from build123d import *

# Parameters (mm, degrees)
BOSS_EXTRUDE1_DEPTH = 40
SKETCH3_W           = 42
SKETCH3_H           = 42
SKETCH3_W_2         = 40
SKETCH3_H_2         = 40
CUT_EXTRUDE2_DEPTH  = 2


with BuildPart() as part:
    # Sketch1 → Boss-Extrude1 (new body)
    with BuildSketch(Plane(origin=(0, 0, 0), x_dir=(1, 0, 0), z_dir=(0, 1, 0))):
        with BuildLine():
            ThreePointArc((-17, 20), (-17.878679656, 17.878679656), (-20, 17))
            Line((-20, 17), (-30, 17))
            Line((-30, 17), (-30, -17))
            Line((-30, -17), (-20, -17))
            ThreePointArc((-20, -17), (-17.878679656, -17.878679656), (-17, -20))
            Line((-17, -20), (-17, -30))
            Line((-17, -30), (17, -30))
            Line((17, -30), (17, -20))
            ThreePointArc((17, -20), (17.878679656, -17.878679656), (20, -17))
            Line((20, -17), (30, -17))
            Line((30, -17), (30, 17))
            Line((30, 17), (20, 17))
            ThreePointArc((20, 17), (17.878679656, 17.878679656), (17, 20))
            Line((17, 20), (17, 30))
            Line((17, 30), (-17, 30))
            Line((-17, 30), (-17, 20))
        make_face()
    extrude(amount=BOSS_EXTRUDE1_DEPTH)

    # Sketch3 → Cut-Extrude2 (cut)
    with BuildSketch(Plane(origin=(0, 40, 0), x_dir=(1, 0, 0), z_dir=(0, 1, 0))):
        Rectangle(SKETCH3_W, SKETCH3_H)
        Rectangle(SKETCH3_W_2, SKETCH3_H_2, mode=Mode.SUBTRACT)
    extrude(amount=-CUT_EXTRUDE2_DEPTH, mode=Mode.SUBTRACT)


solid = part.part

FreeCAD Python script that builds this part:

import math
import FreeCAD as App
import Part
import Sketcher
from FreeCAD import Vector
Q = App.Units.Quantity

doc = App.newDocument("Part")
body = doc.addObject("PartDesign::Body", "Body")

# Sketch on XZ plane
sketch1 = body.newObject("Sketcher::SketchObject", "Sketch")
sketch1.AttachmentSupport = (doc.getObject("XZ_Plane"), [""])
sketch1.MapMode = "FlatFace"
sketch1.addGeometry(Part.ArcOfCircle(Part.Circle(Vector(-20, -20, 0), Vector(0, 0, 1), 3), math.radians(0), math.radians(90)), False)
sketch1.addGeometry(Part.LineSegment(Vector(-20, -17, 0), Vector(-30, -17, 0)), False)
sketch1.addGeometry(Part.LineSegment(Vector(-30, -17, 0), Vector(-30, 17, 0)), False)
sketch1.addGeometry(Part.LineSegment(Vector(-30, 17, 0), Vector(-20, 17, 0)), False)
sketch1.addGeometry(Part.ArcOfCircle(Part.Circle(Vector(-20, 20, 0), Vector(0, 0, 1), 3), math.radians(-90), math.radians(0)), False)
sketch1.addGeometry(Part.LineSegment(Vector(-17, 20, 0), Vector(-17, 30, 0)), False)
sketch1.addGeometry(Part.LineSegment(Vector(-17, 30, 0), Vector(17, 30, 0)), False)
sketch1.addGeometry(Part.LineSegment(Vector(17, 30, 0), Vector(17, 20, 0)), False)
sketch1.addGeometry(Part.ArcOfCircle(Part.Circle(Vector(20, 20, 0), Vector(0, 0, 1), 3), math.radians(180), math.radians(270)), False)
sketch1.addGeometry(Part.LineSegment(Vector(20, 17, 0), Vector(30, 17, 0)), False)
sketch1.addGeometry(Part.LineSegment(Vector(30, 17, 0), Vector(30, -17, 0)), False)
sketch1.addGeometry(Part.LineSegment(Vector(30, -17, 0), Vector(20, -17, 0)), False)
sketch1.addGeometry(Part.ArcOfCircle(Part.Circle(Vector(20, -20, 0), Vector(0, 0, 1), 3), math.radians(90), math.radians(180)), False)
sketch1.addGeometry(Part.LineSegment(Vector(17, -20, 0), Vector(17, -30, 0)), False)
sketch1.addGeometry(Part.LineSegment(Vector(17, -30, 0), Vector(-17, -30, 0)), False)
sketch1.addGeometry(Part.LineSegment(Vector(-17, -30, 0), Vector(-17, -20, 0)), False)
sketch1.addConstraint(Sketcher.Constraint("Tangent", 0, 2, 1, 1))
sketch1.addConstraint(Sketcher.Constraint("Coincident", 1, 2, 2, 1))
sketch1.addConstraint(Sketcher.Constraint("Coincident", 2, 2, 3, 1))
sketch1.addConstraint(Sketcher.Constraint("Tangent", 3, 2, 4, 1))
sketch1.addConstraint(Sketcher.Constraint("Tangent", 4, 2, 5, 1))
sketch1.addConstraint(Sketcher.Constraint("Coincident", 5, 2, 6, 1))
sketch1.addConstraint(Sketcher.Constraint("Coincident", 6, 2, 7, 1))
sketch1.addConstraint(Sketcher.Constraint("Tangent", 7, 2, 8, 1))
sketch1.addConstraint(Sketcher.Constraint("Tangent", 8, 2, 9, 1))
sketch1.addConstraint(Sketcher.Constraint("Coincident", 9, 2, 10, 1))
sketch1.addConstraint(Sketcher.Constraint("Coincident", 10, 2, 11, 1))
sketch1.addConstraint(Sketcher.Constraint("Tangent", 11, 2, 12, 1))
sketch1.addConstraint(Sketcher.Constraint("Tangent", 12, 2, 13, 1))
sketch1.addConstraint(Sketcher.Constraint("Coincident", 13, 2, 14, 1))
sketch1.addConstraint(Sketcher.Constraint("Coincident", 14, 2, 15, 1))
sketch1.addConstraint(Sketcher.Constraint("Tangent", 15, 2, 0, 1))
sketch1.addConstraint(Sketcher.Constraint("Horizontal", 1))
sketch1.addConstraint(Sketcher.Constraint("Vertical", 2))
sketch1.addConstraint(Sketcher.Constraint("Horizontal", 3))
sketch1.addConstraint(Sketcher.Constraint("Vertical", 5))
sketch1.addConstraint(Sketcher.Constraint("Horizontal", 6))
sketch1.addConstraint(Sketcher.Constraint("Vertical", 7))
sketch1.addConstraint(Sketcher.Constraint("Horizontal", 9))
sketch1.addConstraint(Sketcher.Constraint("Vertical", 10))
sketch1.addConstraint(Sketcher.Constraint("Horizontal", 11))
sketch1.addConstraint(Sketcher.Constraint("Vertical", 13))
sketch1.addConstraint(Sketcher.Constraint("Horizontal", 14))
sketch1.addConstraint(Sketcher.Constraint("Vertical", 15))
sketch1.addConstraint(Sketcher.Constraint("Equal", 0, 4))
sketch1.addConstraint(Sketcher.Constraint("Equal", 4, 8))
sketch1.addConstraint(Sketcher.Constraint("Equal", 8, 12))
sketch1.addConstraint(Sketcher.Constraint("Symmetric", 0, 3, 8, 3, -1, 1))
sketch1.addConstraint(Sketcher.Constraint("Symmetric", 4, 3, 12, 3, -1, 1))
sketch1.addConstraint(Sketcher.Constraint("Symmetric", 4, 3, 8, 3, -2))
sketch1.addConstraint(Sketcher.Constraint("Equal", 3, 9))
sketch1.addConstraint(Sketcher.Constraint("Equal", 14, 2))
sketch1.addConstraint(Sketcher.Constraint("Equal", 11, 5))
sketch1.addConstraint(Sketcher.Constraint("Equal", 7, 13))
sketch1.addConstraint(Sketcher.Constraint("Radius", 0, Q("3 mm")))
sketch1.addConstraint(Sketcher.Constraint("DistanceX", 1, 2, 1, 1, Q("10 mm")))
sketch1.addConstraint(Sketcher.Constraint("DistanceX", 6, 1, 6, 2, Q("34 mm")))
pad1 = body.newObject("PartDesign::Pad", "Pad")
pad1.Profile = sketch1
pad1.Length = 40
pad1.Reversed = True

# Sketch on XZ plane
sketch2 = body.newObject("Sketcher::SketchObject", "Sketch001")
sketch2.AttachmentSupport = (doc.getObject("XZ_Plane"), [""])
sketch2.MapMode = "FlatFace"
sketch2.AttachmentOffset = App.Placement(Vector(0, 0, -40), App.Rotation())
sketch2.addGeometry(Part.LineSegment(Vector(-21, -21, 0), Vector(-21, 21, 0)), False)
sketch2.addGeometry(Part.LineSegment(Vector(-21, 21, 0), Vector(21, 21, 0)), False)
sketch2.addGeometry(Part.LineSegment(Vector(21, 21, 0), Vector(21, -21, 0)), False)
sketch2.addGeometry(Part.LineSegment(Vector(21, -21, 0), Vector(-21, -21, 0)), False)
sketch2.addGeometry(Part.LineSegment(Vector(20, 20, 0), Vector(-20, 20, 0)), False)
sketch2.addGeometry(Part.LineSegment(Vector(-20, 20, 0), Vector(-20, -20, 0)), False)
sketch2.addGeometry(Part.LineSegment(Vector(-20, -20, 0), Vector(20, -20, 0)), False)
sketch2.addGeometry(Part.LineSegment(Vector(20, -20, 0), Vector(20, 20, 0)), False)
sketch2.addConstraint(Sketcher.Constraint("Coincident", 0, 2, 1, 1))
sketch2.addConstraint(Sketcher.Constraint("Coincident", 1, 2, 2, 1))
sketch2.addConstraint(Sketcher.Constraint("Coincident", 2, 2, 3, 1))
sketch2.addConstraint(Sketcher.Constraint("Coincident", 3, 2, 0, 1))
sketch2.addConstraint(Sketcher.Constraint("Coincident", 4, 2, 5, 1))
sketch2.addConstraint(Sketcher.Constraint("Coincident", 5, 2, 6, 1))
sketch2.addConstraint(Sketcher.Constraint("Coincident", 6, 2, 7, 1))
sketch2.addConstraint(Sketcher.Constraint("Coincident", 7, 2, 4, 1))
sketch2.addConstraint(Sketcher.Constraint("Vertical", 0))
sketch2.addConstraint(Sketcher.Constraint("Horizontal", 1))
sketch2.addConstraint(Sketcher.Constraint("Vertical", 2))
sketch2.addConstraint(Sketcher.Constraint("Horizontal", 3))
sketch2.addConstraint(Sketcher.Constraint("Horizontal", 4))
sketch2.addConstraint(Sketcher.Constraint("Vertical", 5))
sketch2.addConstraint(Sketcher.Constraint("Horizontal", 6))
sketch2.addConstraint(Sketcher.Constraint("Vertical", 7))
sketch2.addConstraint(Sketcher.Constraint("Symmetric", 0, 2, 2, 2, -1, 1))
sketch2.addConstraint(Sketcher.Constraint("Symmetric", 4, 2, 6, 2, -1, 1))
sketch2.addConstraint(Sketcher.Constraint("Equal", 3, 0))
sketch2.addConstraint(Sketcher.Constraint("Equal", 6, 5))
sketch2.addConstraint(Sketcher.Constraint("DistanceX", 1, 1, 1, 2, Q("42 mm")))
sketch2.addConstraint(Sketcher.Constraint("DistanceX", 4, 2, 4, 1, Q("40 mm")))
pocket1 = body.newObject("PartDesign::Pocket", "Pocket")
pocket1.Profile = sketch2
pocket1.Length = 2
pocket1.Reversed = True

doc.recompute()
